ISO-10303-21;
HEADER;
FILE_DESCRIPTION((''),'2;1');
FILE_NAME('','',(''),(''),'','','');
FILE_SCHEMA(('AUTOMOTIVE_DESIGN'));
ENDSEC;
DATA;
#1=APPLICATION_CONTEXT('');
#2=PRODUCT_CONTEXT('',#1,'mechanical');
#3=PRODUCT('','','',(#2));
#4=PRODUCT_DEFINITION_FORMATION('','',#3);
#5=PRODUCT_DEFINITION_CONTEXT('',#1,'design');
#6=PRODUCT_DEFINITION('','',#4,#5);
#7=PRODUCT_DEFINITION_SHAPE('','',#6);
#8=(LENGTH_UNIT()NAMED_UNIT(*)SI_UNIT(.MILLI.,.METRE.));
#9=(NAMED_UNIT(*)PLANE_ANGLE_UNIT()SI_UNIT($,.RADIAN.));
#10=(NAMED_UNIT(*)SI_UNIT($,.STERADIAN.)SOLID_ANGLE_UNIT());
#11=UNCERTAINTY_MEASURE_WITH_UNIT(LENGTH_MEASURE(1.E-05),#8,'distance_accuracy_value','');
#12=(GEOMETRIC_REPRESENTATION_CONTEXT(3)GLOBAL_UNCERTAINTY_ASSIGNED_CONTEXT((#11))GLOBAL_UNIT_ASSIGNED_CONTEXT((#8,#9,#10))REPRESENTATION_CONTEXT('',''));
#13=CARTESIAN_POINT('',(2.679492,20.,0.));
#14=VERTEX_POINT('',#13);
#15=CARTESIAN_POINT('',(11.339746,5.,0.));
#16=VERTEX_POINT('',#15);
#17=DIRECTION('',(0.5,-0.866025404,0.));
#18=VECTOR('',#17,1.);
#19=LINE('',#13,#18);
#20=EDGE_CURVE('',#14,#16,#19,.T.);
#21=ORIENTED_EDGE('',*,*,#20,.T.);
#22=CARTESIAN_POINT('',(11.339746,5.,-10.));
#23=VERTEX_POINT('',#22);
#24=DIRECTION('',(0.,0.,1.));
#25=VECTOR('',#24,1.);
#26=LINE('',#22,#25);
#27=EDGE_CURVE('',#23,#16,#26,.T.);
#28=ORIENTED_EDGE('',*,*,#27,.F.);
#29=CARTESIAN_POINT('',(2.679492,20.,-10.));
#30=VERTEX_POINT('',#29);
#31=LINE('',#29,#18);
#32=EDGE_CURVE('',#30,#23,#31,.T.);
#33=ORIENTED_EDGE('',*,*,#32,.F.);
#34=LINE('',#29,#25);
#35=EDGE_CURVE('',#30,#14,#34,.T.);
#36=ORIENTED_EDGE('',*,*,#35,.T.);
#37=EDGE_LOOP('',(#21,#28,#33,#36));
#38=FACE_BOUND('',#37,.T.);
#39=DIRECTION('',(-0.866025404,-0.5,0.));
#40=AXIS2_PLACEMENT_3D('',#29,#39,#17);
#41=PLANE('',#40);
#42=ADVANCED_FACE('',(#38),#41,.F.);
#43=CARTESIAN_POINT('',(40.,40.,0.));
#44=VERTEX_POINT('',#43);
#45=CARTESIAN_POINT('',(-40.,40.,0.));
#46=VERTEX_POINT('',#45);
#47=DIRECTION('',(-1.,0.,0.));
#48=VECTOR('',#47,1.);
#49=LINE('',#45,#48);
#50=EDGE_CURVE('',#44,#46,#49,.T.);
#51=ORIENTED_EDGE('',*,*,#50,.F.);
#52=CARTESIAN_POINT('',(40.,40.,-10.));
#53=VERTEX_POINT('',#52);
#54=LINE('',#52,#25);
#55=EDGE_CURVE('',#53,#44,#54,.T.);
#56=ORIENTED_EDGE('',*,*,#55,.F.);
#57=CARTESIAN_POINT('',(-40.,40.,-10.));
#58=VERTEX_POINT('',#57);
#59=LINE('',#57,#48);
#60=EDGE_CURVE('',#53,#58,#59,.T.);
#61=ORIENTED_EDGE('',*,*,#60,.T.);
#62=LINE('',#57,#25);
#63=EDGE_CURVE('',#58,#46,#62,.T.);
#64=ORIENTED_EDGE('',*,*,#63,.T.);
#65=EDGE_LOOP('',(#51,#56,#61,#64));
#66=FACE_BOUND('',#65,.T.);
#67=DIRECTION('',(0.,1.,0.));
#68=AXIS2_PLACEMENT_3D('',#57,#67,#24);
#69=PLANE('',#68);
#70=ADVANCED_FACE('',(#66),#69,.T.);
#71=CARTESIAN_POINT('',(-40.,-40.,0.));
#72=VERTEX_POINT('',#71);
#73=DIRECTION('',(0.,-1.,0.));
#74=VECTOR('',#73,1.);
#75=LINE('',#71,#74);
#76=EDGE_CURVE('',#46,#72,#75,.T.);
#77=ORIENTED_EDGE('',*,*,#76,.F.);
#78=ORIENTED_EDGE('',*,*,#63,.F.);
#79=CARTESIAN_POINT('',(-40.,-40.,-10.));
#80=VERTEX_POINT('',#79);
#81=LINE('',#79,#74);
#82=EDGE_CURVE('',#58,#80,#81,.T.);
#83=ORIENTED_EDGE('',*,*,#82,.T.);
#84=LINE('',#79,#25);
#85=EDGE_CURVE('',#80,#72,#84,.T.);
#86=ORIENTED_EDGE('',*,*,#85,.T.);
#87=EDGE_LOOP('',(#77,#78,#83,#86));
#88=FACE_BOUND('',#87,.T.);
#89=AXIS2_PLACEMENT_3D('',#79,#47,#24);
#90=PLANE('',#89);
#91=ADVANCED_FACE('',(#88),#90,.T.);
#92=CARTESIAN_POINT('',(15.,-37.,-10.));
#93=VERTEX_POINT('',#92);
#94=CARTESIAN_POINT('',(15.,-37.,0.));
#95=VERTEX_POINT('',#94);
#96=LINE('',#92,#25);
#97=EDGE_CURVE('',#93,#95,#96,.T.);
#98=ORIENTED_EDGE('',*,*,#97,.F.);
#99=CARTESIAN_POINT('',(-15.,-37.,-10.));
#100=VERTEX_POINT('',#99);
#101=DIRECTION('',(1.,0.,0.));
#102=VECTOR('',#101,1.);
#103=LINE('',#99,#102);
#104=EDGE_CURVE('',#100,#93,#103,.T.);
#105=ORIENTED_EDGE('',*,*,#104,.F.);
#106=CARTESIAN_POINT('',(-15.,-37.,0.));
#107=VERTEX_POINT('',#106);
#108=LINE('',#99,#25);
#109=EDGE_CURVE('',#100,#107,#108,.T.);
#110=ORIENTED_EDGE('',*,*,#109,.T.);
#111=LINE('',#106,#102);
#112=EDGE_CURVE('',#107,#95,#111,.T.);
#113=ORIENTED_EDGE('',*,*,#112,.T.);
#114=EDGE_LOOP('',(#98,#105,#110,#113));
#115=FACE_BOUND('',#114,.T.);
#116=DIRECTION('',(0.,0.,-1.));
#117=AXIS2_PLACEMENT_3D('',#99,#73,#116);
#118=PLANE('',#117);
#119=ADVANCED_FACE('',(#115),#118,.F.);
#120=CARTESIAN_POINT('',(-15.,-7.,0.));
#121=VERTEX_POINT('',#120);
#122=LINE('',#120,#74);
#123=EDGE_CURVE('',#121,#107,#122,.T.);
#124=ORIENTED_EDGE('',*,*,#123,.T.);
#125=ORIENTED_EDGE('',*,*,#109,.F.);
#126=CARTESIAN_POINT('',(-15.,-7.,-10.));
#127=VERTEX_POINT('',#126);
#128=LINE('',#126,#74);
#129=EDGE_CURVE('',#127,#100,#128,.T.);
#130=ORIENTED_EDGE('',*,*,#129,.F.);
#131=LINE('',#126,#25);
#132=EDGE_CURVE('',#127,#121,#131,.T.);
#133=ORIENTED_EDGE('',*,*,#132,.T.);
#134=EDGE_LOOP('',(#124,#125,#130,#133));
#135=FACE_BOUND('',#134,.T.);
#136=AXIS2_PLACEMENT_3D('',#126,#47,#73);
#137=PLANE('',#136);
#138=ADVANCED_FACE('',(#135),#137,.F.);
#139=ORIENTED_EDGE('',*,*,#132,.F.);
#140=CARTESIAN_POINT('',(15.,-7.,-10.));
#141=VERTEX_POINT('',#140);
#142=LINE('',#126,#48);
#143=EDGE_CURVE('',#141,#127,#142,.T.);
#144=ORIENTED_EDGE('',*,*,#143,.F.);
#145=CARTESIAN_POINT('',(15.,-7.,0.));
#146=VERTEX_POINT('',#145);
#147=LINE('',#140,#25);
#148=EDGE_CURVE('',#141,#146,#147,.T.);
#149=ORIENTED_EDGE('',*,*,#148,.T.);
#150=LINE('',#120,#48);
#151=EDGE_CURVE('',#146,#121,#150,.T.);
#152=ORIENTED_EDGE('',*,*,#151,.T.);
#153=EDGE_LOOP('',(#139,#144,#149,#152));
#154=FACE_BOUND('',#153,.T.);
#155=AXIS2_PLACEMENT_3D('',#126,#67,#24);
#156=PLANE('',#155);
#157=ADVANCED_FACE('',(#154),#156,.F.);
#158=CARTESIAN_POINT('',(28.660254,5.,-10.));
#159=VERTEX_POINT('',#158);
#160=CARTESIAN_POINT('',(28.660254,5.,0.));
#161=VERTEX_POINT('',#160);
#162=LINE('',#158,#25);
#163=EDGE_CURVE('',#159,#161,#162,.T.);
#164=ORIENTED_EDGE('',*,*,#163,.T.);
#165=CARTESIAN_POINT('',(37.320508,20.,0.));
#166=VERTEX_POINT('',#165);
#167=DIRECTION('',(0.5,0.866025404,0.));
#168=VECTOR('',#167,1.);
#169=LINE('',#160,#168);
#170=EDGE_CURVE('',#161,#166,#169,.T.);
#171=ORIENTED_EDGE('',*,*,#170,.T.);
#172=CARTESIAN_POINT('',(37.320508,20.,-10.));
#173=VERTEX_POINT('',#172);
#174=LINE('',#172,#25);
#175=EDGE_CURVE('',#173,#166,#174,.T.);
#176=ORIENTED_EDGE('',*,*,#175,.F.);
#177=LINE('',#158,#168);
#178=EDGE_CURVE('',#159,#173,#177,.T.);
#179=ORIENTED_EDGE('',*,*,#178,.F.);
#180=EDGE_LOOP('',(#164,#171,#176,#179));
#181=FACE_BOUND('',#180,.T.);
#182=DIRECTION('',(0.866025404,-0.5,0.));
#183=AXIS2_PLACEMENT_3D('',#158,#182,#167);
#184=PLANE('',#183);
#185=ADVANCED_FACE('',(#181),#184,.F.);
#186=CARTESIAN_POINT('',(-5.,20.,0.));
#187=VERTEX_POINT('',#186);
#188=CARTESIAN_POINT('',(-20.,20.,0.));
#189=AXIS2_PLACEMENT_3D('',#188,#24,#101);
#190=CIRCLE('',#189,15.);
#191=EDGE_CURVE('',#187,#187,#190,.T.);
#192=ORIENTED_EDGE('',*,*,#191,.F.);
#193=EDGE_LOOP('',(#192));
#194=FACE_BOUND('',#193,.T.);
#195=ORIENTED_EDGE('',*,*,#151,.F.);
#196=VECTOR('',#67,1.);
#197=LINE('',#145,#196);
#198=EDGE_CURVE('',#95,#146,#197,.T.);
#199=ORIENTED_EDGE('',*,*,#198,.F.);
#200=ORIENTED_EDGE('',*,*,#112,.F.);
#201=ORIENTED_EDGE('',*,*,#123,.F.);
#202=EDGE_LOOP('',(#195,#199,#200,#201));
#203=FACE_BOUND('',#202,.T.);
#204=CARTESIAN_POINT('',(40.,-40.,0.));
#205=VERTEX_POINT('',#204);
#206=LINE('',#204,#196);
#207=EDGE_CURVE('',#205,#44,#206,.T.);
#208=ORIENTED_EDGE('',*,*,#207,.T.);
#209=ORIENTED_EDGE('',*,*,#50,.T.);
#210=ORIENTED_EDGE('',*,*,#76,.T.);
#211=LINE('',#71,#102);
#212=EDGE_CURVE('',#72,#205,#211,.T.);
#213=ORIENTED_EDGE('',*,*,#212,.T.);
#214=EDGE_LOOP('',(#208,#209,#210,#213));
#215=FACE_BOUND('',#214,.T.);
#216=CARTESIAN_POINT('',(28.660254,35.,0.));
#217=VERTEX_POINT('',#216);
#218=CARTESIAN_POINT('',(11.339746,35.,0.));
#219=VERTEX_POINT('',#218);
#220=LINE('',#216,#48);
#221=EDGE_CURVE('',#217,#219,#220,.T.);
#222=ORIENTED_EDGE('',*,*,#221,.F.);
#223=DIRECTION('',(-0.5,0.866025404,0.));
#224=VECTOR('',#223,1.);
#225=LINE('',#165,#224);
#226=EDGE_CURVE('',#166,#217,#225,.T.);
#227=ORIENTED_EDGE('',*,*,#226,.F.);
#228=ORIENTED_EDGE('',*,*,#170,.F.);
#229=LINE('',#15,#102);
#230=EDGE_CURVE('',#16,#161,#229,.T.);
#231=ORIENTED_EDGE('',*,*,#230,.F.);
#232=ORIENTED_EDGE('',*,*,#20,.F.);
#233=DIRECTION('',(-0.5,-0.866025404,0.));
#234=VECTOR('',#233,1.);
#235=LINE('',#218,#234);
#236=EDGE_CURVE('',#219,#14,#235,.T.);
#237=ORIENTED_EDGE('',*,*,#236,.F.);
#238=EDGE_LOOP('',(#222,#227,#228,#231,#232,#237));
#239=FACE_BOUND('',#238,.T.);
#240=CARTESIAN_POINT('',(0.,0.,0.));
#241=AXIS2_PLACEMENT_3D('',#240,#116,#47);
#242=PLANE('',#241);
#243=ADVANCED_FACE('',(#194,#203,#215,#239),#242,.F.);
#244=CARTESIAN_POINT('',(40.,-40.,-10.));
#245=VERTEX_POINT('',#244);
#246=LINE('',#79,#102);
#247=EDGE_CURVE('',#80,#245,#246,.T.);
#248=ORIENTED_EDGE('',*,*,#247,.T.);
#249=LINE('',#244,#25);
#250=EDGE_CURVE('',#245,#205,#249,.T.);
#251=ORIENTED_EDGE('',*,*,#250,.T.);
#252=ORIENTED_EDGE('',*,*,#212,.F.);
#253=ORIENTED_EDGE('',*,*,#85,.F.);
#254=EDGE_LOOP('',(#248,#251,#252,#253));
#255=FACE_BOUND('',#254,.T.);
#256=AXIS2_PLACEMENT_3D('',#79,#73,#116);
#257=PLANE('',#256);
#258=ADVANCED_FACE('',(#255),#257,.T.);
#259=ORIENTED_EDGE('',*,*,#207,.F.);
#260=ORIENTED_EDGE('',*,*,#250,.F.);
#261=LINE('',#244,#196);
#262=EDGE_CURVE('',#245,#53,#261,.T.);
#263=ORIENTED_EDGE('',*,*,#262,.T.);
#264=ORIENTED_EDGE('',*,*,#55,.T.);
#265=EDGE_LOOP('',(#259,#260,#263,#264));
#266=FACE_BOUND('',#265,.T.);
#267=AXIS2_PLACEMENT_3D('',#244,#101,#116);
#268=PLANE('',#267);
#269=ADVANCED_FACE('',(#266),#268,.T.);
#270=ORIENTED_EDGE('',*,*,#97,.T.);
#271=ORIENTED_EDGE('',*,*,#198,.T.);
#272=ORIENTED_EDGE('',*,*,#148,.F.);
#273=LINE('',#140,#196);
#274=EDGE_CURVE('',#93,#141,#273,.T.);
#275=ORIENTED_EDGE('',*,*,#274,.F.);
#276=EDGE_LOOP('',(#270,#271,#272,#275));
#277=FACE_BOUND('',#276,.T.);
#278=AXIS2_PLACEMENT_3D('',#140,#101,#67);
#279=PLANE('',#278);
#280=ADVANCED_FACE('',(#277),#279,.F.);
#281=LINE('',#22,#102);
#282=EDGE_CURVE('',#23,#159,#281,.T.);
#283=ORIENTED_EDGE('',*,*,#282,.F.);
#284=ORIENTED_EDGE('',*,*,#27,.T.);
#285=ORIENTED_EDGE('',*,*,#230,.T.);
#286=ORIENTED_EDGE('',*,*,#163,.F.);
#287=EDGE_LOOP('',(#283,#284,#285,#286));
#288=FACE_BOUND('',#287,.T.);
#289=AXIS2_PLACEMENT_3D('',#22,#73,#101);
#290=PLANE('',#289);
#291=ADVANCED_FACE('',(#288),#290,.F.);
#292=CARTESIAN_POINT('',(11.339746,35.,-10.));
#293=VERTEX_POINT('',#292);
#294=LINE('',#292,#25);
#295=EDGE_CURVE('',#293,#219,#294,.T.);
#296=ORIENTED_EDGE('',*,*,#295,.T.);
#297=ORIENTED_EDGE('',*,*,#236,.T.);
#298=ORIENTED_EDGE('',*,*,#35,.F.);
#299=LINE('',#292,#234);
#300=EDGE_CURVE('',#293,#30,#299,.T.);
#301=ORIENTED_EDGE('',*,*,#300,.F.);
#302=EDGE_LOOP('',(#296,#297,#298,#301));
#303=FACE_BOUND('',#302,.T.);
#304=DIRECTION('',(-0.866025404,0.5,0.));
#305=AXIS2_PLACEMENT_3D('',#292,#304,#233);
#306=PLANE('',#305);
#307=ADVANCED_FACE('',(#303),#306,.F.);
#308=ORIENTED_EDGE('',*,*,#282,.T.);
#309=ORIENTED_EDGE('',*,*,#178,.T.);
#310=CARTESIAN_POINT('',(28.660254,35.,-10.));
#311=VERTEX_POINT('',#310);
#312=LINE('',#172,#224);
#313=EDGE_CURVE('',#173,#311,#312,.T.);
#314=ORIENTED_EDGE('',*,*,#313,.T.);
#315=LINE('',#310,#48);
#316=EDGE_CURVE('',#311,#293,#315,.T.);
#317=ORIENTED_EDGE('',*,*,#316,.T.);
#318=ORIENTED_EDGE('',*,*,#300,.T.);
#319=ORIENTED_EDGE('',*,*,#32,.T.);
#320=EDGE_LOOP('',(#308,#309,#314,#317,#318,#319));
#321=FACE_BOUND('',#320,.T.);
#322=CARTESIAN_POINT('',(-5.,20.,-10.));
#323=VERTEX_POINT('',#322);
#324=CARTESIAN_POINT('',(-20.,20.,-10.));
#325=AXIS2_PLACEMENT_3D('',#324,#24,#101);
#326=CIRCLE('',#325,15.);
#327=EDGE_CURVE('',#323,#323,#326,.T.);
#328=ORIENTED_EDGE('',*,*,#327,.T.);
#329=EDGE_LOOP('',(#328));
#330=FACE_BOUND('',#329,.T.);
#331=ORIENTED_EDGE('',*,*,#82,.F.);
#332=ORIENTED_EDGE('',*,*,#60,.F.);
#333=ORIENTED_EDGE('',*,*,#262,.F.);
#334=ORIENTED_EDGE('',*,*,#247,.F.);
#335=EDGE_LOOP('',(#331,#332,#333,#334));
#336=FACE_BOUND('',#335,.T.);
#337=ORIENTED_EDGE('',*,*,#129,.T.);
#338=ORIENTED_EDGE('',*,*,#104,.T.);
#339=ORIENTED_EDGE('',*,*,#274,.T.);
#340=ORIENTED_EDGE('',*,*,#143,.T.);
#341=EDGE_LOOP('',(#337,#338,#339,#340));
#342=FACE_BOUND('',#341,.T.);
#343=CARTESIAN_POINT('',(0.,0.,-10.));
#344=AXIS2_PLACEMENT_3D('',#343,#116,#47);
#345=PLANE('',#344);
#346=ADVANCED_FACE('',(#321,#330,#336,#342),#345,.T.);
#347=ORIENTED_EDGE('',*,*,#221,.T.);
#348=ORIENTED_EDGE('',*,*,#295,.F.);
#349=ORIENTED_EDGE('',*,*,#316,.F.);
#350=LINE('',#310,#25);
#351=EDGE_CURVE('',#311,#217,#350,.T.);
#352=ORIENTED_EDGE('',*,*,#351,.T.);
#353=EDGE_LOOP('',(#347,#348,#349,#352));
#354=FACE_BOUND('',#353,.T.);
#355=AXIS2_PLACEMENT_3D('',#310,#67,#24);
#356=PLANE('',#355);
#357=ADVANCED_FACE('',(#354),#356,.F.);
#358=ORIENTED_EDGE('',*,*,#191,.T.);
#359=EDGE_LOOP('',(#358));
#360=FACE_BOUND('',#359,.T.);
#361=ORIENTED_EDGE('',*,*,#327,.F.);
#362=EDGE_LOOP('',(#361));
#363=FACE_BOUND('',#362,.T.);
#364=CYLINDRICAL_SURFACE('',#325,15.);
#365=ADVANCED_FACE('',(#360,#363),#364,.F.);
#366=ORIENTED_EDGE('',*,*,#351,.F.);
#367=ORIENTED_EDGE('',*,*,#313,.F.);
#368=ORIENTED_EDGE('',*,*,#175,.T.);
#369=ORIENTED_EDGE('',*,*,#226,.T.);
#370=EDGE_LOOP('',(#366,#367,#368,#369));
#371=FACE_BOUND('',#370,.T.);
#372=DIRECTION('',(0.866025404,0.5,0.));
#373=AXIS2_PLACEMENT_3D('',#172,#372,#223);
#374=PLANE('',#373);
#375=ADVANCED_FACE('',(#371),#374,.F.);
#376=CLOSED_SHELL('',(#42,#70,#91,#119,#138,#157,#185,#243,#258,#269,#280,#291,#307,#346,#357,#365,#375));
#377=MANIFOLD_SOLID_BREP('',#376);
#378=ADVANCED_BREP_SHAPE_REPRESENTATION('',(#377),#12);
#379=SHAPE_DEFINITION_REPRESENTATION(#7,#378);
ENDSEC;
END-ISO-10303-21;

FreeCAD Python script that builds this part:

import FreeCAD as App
import Part
import Sketcher

V = App.Vector
Q = App.Units.Quantity


def add_polygon(sketch, points):
    """Adds a closed chain of lines whose ends are joined by coincident constraints."""
    first, n = sketch.GeometryCount, len(points)
    for a, b in zip(points, points[1:] + points[:1]):
        sketch.addGeometry(Part.LineSegment(App.Vector(*a, 0), App.Vector(*b, 0)), False)
    for i in range(n):
        sketch.addConstraint(Sketcher.Constraint("Coincident", first + i, 2, first + (i + 1) % n, 1))

doc = App.newDocument("Part")
body = doc.addObject("PartDesign::Body", "Body")

sketch1 = doc.addObject("Sketcher::SketchObject", "Sketch")
body.addObject(sketch1)
sketch1.AttachmentSupport = (doc.XY_Plane, [""])
sketch1.MapMode = "FlatFace"
add_polygon(sketch1, [(-40, 40), (-40, -40), (40, -40), (40, 40)])
add_polygon(sketch1, [(15, -37), (-15, -37), (-15, -7), (15, -7)])
sketch1.addGeometry(Part.Circle(V(-20, 20, 0), V(0, 0, 1), 15), False)
add_polygon(sketch1, [(3, 20), (11, 35), (29, 35), (37, 20), (29, 5), (11, 5)])
sketch1.addConstraint([
    Sketcher.Constraint("Vertical", 0),
    Sketcher.Constraint("Horizontal", 1),
    Sketcher.Constraint("Vertical", 2),
    Sketcher.Constraint("Horizontal", 3),
    Sketcher.Constraint("Horizontal", 4),
    Sketcher.Constraint("Vertical", 5),
    Sketcher.Constraint("Horizontal", 6),
    Sketcher.Constraint("Vertical", 7),
    Sketcher.Constraint("Horizontal", 10),
    Sketcher.Constraint("Horizontal", 13),
    Sketcher.Constraint("Symmetric", 0, 2, 2, 2, -1, 1),
    Sketcher.Constraint("Parallel", 9, 12),
    Sketcher.Constraint("Parallel", 11, 14),
    Sketcher.Constraint("Horizontal", 8, 3, 11, 2),
    Sketcher.Constraint("Horizontal", 11, 2, 14, 2),
    Sketcher.Constraint("Vertical", 10, 2, 12, 2),
    Sketcher.Constraint("Vertical", 9, 2, 13, 2),
    Sketcher.Constraint("Equal", 3, 0),
    Sketcher.Constraint("Equal", 6, 5),
    Sketcher.Constraint("Diameter", 8, Q("30 mm")),
    Sketcher.Constraint("DistanceX", 1, 1, 1, 2, Q("80 mm")),
    Sketcher.Constraint("DistanceX", 4, 2, 4, 1, Q("30 mm")),
    Sketcher.Constraint("Angle", 9, Q("60 deg")),
    Sketcher.Constraint("DistanceX", 8, 3, -1, 1, Q("20 mm")),
    Sketcher.Constraint("DistanceY", -1, 1, 8, 3, Q("20 mm")),
    Sketcher.Constraint("DistanceX", 4, 2, -1, 1, Q("15 mm")),
    Sketcher.Constraint("DistanceY", 4, 2, -1, 1, Q("37 mm")),
    Sketcher.Constraint("DistanceY", -1, 1, 9, 2, Q("35 mm")),
    Sketcher.Constraint("DistanceX", 10, 1, 10, 2, Q("17.320508 mm")),
    Sketcher.Constraint("DistanceX", -1, 1, 11, 2, Q("37.320508 mm")),
])
pad1 = doc.addObject("PartDesign::Pad", "Pad")
body.addObject(pad1)
pad1.Profile = sketch1
pad1.Length = 10
pad1.Reversed = True

doc.recompute()
